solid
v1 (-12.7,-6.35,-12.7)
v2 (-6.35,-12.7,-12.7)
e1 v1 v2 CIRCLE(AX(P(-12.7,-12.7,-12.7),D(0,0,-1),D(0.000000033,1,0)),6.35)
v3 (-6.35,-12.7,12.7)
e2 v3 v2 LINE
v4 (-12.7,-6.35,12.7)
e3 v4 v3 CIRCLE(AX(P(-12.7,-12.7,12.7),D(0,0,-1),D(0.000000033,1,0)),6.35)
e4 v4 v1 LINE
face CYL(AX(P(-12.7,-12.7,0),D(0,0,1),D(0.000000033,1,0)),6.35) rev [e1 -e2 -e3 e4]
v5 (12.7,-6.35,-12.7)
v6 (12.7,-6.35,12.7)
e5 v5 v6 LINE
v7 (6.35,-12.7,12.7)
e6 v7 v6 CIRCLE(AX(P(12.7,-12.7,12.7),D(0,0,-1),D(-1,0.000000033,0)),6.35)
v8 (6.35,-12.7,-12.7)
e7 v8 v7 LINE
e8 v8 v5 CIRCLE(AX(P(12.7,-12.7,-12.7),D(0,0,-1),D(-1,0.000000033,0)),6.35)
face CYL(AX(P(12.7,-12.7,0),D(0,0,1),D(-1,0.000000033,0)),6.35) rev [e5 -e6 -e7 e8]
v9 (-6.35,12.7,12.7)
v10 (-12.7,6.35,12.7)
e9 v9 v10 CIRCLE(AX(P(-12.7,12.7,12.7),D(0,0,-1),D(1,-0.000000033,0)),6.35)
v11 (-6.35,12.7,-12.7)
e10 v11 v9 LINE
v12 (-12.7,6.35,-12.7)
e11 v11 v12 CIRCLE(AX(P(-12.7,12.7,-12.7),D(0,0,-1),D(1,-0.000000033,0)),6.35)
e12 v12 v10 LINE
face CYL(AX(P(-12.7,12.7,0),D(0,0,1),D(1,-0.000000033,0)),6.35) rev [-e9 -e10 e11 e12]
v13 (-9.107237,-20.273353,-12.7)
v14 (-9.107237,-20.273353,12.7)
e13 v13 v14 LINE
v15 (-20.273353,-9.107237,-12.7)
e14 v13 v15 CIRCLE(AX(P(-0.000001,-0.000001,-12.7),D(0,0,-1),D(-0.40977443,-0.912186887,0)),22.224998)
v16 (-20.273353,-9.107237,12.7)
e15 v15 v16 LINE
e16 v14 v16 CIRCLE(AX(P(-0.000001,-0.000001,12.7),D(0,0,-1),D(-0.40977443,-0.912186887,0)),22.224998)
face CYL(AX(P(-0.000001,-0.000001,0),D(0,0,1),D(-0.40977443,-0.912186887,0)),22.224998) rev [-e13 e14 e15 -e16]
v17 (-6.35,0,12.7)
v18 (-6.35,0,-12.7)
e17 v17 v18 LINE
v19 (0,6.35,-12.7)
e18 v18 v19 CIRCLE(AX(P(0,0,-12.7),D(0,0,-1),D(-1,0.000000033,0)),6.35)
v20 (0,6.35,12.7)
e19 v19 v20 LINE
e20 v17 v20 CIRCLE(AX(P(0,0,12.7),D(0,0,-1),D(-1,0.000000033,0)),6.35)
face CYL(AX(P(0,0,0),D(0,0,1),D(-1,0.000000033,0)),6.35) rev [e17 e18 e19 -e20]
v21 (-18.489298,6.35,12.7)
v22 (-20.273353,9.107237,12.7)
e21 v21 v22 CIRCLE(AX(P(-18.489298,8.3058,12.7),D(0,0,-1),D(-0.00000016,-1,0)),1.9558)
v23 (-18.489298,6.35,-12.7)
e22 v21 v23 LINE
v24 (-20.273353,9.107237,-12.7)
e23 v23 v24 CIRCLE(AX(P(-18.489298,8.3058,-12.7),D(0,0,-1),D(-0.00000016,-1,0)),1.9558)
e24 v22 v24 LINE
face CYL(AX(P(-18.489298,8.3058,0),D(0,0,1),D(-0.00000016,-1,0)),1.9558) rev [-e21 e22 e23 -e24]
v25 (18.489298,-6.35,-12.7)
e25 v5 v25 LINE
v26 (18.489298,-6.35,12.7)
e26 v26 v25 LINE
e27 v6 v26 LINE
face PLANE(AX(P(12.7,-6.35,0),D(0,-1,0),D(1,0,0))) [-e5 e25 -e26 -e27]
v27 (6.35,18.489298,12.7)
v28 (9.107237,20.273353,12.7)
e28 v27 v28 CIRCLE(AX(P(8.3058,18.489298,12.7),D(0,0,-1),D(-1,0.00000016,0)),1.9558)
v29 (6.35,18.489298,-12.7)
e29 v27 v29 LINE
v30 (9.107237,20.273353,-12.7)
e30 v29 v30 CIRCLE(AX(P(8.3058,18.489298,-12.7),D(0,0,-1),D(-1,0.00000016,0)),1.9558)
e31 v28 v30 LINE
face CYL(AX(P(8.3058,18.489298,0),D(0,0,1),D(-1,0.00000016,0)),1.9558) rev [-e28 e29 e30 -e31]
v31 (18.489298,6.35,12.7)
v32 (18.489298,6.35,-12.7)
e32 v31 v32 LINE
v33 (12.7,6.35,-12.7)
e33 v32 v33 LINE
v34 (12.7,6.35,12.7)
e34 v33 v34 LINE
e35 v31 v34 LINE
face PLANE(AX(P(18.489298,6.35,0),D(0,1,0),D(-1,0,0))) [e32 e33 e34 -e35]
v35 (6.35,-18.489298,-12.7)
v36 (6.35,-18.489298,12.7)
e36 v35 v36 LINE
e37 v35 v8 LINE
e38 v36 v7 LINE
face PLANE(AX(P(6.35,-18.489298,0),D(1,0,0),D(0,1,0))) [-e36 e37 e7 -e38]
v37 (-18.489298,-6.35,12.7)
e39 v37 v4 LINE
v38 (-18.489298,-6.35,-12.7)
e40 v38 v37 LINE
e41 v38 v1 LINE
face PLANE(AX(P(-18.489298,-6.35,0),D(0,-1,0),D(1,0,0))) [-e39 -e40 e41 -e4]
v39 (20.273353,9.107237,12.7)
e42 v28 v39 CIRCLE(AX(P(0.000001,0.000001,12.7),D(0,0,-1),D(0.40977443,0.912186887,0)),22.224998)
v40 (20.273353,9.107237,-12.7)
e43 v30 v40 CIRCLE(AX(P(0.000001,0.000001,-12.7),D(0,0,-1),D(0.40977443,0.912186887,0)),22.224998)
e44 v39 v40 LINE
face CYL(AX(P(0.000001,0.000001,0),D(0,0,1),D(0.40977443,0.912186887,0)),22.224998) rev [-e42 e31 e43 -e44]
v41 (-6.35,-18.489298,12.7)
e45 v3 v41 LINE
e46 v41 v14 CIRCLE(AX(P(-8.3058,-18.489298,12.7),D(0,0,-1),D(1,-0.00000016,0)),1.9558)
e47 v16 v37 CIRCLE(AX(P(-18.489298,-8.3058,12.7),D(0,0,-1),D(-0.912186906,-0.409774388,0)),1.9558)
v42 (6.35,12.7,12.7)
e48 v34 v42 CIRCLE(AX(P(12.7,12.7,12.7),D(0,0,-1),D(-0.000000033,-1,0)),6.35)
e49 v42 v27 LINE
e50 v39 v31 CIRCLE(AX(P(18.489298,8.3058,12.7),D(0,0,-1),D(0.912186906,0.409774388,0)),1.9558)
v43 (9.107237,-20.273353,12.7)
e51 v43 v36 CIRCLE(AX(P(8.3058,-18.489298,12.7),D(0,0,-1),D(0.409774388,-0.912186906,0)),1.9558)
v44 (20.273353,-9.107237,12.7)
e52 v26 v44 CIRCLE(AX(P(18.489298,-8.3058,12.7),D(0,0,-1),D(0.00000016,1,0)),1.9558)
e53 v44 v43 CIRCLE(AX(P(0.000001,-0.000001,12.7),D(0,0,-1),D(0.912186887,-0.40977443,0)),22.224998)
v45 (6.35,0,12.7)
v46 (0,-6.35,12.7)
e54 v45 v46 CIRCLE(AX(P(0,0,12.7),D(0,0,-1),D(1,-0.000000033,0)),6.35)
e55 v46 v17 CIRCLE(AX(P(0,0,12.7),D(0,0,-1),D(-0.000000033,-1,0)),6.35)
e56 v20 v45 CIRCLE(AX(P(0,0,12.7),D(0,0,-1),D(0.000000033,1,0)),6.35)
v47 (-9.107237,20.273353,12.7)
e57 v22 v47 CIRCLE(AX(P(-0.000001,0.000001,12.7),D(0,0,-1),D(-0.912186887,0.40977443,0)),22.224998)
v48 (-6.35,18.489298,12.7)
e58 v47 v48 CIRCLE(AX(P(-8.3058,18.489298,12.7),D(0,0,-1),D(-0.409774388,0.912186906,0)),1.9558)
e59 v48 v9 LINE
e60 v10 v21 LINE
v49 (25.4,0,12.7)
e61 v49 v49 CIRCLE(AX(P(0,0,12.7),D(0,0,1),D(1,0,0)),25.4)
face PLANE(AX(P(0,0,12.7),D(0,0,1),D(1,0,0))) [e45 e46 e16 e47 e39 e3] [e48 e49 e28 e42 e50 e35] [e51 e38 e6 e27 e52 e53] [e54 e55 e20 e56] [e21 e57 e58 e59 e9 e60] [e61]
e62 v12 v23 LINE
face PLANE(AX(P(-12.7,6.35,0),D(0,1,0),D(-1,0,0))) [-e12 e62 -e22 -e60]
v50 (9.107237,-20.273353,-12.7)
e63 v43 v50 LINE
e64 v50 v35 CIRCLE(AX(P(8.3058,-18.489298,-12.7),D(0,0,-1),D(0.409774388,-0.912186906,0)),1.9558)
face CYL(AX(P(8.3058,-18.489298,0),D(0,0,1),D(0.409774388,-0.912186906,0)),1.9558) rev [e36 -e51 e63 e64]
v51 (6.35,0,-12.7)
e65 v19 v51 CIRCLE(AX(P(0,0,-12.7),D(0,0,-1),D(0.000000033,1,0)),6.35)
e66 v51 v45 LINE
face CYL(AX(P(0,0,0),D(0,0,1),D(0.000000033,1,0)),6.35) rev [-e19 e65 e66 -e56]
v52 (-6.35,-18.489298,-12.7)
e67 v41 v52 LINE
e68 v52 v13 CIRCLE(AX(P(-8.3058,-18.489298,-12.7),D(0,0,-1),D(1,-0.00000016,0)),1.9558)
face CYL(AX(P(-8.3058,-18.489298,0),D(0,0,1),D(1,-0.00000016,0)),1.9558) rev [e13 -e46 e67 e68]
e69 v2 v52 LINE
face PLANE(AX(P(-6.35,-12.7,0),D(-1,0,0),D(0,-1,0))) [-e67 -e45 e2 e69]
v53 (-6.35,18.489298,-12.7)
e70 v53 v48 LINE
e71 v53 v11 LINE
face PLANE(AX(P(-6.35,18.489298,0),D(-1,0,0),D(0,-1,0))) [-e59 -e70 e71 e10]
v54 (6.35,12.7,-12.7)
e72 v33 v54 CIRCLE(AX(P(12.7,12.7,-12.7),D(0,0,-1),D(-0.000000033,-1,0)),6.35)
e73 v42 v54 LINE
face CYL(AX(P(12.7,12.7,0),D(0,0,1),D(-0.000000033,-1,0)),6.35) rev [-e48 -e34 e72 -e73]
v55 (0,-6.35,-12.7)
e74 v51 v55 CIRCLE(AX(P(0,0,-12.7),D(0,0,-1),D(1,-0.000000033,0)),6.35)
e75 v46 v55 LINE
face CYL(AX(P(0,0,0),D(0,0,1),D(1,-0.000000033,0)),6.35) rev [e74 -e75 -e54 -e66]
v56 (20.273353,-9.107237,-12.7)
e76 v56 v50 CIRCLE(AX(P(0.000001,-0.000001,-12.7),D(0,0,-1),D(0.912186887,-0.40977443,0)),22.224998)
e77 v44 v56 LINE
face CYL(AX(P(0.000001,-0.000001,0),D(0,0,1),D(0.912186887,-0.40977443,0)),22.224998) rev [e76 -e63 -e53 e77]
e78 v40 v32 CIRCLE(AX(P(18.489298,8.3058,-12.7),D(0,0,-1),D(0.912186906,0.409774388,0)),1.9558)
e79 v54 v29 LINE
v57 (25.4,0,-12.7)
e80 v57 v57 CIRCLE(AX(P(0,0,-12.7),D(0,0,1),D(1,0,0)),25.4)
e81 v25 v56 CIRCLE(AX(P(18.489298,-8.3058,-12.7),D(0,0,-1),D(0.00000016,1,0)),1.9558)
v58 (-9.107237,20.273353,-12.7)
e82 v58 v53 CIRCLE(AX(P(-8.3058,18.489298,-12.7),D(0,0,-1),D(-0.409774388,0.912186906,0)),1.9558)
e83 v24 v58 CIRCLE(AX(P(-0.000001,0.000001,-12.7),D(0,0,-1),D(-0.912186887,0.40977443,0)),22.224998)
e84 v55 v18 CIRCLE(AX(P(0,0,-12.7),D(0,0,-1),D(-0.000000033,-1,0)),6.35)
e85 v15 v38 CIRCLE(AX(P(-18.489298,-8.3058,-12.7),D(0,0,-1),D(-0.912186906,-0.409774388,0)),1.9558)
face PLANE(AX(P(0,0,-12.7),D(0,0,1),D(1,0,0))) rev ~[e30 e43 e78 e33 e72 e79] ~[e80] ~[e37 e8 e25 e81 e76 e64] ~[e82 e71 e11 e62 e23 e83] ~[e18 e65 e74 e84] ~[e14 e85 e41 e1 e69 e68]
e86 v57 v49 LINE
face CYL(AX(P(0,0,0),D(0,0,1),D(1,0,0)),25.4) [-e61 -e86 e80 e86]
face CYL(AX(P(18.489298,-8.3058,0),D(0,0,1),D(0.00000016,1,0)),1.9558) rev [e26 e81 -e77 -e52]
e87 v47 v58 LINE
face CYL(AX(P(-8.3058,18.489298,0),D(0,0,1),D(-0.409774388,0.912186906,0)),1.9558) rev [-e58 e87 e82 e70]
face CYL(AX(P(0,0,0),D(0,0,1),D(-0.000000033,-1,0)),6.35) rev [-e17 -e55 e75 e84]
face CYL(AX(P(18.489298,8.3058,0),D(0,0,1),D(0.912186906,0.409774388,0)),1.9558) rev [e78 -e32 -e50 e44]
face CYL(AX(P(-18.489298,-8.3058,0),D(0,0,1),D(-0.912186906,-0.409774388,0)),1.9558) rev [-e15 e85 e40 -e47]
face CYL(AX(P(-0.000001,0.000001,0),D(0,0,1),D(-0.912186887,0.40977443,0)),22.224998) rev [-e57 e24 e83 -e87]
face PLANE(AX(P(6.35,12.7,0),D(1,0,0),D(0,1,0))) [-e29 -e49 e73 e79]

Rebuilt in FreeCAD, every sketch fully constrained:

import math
import FreeCAD as App
import Part
import Sketcher

V = App.Vector
Q = App.Units.Quantity

doc = App.newDocument("Part")
body = doc.addObject("PartDesign::Body", "Body")

# Sketch on XY plane
sketch1 = doc.addObject("Sketcher::SketchObject", "Sketch")
body.addObject(sketch1)
sketch1.AttachmentSupport = (doc.XY_Plane, [""])
sketch1.MapMode = "FlatFace"
sketch1.addGeometry(Part.Circle(V(0, 0, 0), V(0, 0, 1), 25.4), False)
sketch1.addGeometry(Part.ArcOfCircle(Part.Circle(V(-8.3, -18.5, 0), V(0, 0, 1), 2), math.radians(-114), math.radians(0)), False)
sketch1.addGeometry(Part.ArcOfCircle(Part.Circle(V(0, 0, 0), V(0, 0, 1), 22.2), math.radians(-156), math.radians(-114)), False)
sketch1.addGeometry(Part.ArcOfCircle(Part.Circle(V(-18.5, -8.3, 0), V(0, 0, 1), 2), math.radians(90), math.radians(204)), False)
sketch1.addGeometry(Part.LineSegment(V(-18.5, -6.3, 0), V(-12.7, -6.3, 0)), False)
sketch1.addGeometry(Part.ArcOfCircle(Part.Circle(V(-12.7, -12.7, 0), V(0, 0, 1), 6.4), math.radians(0), math.radians(90)), False)
sketch1.addGeometry(Part.LineSegment(V(-6.3, -12.7, 0), V(-6.3, -18.5, 0)), False)
sketch1.addGeometry(Part.ArcOfCircle(Part.Circle(V(8.3, -18.5, 0), V(0, 0, 1), 2), math.radians(-180), math.radians(-66)), False)
sketch1.addGeometry(Part.LineSegment(V(6.3, -18.5, 0), V(6.3, -12.7, 0)), False)
sketch1.addGeometry(Part.ArcOfCircle(Part.Circle(V(12.7, -12.7, 0), V(0, 0, 1), 6.4), math.radians(90), math.radians(180)), False)
sketch1.addGeometry(Part.LineSegment(V(12.7, -6.3, 0), V(18.5, -6.3, 0)), False)
sketch1.addGeometry(Part.ArcOfCircle(Part.Circle(V(18.5, -8.3, 0), V(0, 0, 1), 2), math.radians(-24), math.radians(90)), False)
sketch1.addGeometry(Part.ArcOfCircle(Part.Circle(V(0, 0, 0), V(0, 0, 1), 22.2), math.radians(-66), math.radians(-24)), False)
sketch1.addGeometry(Part.ArcOfCircle(Part.Circle(V(-8.3, 18.5, 0), V(0, 0, 1), 2), math.radians(0), math.radians(114)), False)
sketch1.addGeometry(Part.LineSegment(V(-6.3, 18.5, 0), V(-6.3, 12.7, 0)), False)
sketch1.addGeometry(Part.ArcOfCircle(Part.Circle(V(-12.7, 12.7, 0), V(0, 0, 1), 6.4), math.radians(-90), math.radians(0)), False)
sketch1.addGeometry(Part.LineSegment(V(-12.7, 6.3, 0), V(-18.5, 6.3, 0)), False)
sketch1.addGeometry(Part.ArcOfCircle(Part.Circle(V(-18.5, 8.3, 0), V(0, 0, 1), 2), math.radians(156), math.radians(270)), False)
sketch1.addGeometry(Part.ArcOfCircle(Part.Circle(V(0, 0, 0), V(0, 0, 1), 22.2), math.radians(114), math.radians(156)), False)
sketch1.addGeometry(Part.ArcOfCircle(Part.Circle(V(0, 0, 0), V(0, 0, 1), 6.4), math.radians(90), math.radians(180)), False)
sketch1.addGeometry(Part.ArcOfCircle(Part.Circle(V(0, 0, 0), V(0, 0, 1), 6.4), math.radians(0), math.radians(90)), False)
sketch1.addGeometry(Part.ArcOfCircle(Part.Circle(V(0, 0, 0), V(0, 0, 1), 6.4), math.radians(-90), math.radians(0)), False)
sketch1.addGeometry(Part.ArcOfCircle(Part.Circle(V(0, 0, 0), V(0, 0, 1), 6.4), math.radians(-180), math.radians(-90)), False)
sketch1.addGeometry(Part.LineSegment(V(18.5, 6.3, 0), V(12.7, 6.3, 0)), False)
sketch1.addGeometry(Part.ArcOfCircle(Part.Circle(V(12.7, 12.7, 0), V(0, 0, 1), 6.4), math.radians(-180), math.radians(-90)), False)
sketch1.addGeometry(Part.LineSegment(V(6.3, 12.7, 0), V(6.3, 18.5, 0)), False)
sketch1.addGeometry(Part.ArcOfCircle(Part.Circle(V(8.3, 18.5, 0), V(0, 0, 1), 2), math.radians(66), math.radians(180)), False)
sketch1.addGeometry(Part.ArcOfCircle(Part.Circle(V(0, 0, 0), V(0, 0, 1), 22.2), math.radians(24), math.radians(66)), False)
sketch1.addGeometry(Part.ArcOfCircle(Part.Circle(V(18.5, 8.3, 0), V(0, 0, 1), 2), math.radians(-90), math.radians(24)), False)
sketch1.addConstraint(Sketcher.Constraint("Tangent", 1, 1, 2, 2))
sketch1.addConstraint(Sketcher.Constraint("Tangent", 2, 1, 3, 2))
sketch1.addConstraint(Sketcher.Constraint("Tangent", 3, 1, 4, 1))
sketch1.addConstraint(Sketcher.Constraint("Tangent", 4, 2, 5, 2))
sketch1.addConstraint(Sketcher.Constraint("Tangent", 5, 1, 6, 1))
sketch1.addConstraint(Sketcher.Constraint("Tangent", 6, 2, 1, 2))
sketch1.addConstraint(Sketcher.Constraint("Tangent", 7, 1, 8, 1))
sketch1.addConstraint(Sketcher.Constraint("Tangent", 8, 2, 9, 2))
sketch1.addConstraint(Sketcher.Constraint("Tangent", 9, 1, 10, 1))
sketch1.addConstraint(Sketcher.Constraint("Tangent", 10, 2, 11, 2))
sketch1.addConstraint(Sketcher.Constraint("Tangent", 11, 1, 12, 2))
sketch1.addConstraint(Sketcher.Constraint("Tangent", 12, 1, 7, 2))
sketch1.addConstraint(Sketcher.Constraint("Tangent", 13, 1, 14, 1))
sketch1.addConstraint(Sketcher.Constraint("Tangent", 14, 2, 15, 2))
sketch1.addConstraint(Sketcher.Constraint("Tangent", 15, 1, 16, 1))
sketch1.addConstraint(Sketcher.Constraint("Tangent", 16, 2, 17, 2))
sketch1.addConstraint(Sketcher.Constraint("Tangent", 17, 1, 18, 2))
sketch1.addConstraint(Sketcher.Constraint("Tangent", 18, 1, 13, 2))
sketch1.addConstraint(Sketcher.Constraint("Tangent", 19, 1, 20, 2))
sketch1.addConstraint(Sketcher.Constraint("Tangent", 20, 1, 21, 2))
sketch1.addConstraint(Sketcher.Constraint("Tangent", 21, 1, 22, 2))
sketch1.addConstraint(Sketcher.Constraint("Tangent", 22, 1, 19, 2))
sketch1.addConstraint(Sketcher.Constraint("Tangent", 23, 2, 24, 2))
sketch1.addConstraint(Sketcher.Constraint("Tangent", 24, 1, 25, 1))
sketch1.addConstraint(Sketcher.Constraint("Tangent", 25, 2, 26, 2))
sketch1.addConstraint(Sketcher.Constraint("Tangent", 26, 1, 27, 2))
sketch1.addConstraint(Sketcher.Constraint("Tangent", 27, 1, 28, 2))
sketch1.addConstraint(Sketcher.Constraint("Tangent", 28, 1, 23, 1))
sketch1.addConstraint(Sketcher.Constraint("Horizontal", 4))
sketch1.addConstraint(Sketcher.Constraint("Vertical", 6))
sketch1.addConstraint(Sketcher.Constraint("Vertical", 8))
sketch1.addConstraint(Sketcher.Constraint("Horizontal", 10))
sketch1.addConstraint(Sketcher.Constraint("Vertical", 14))
sketch1.addConstraint(Sketcher.Constraint("Horizontal", 16))
sketch1.addConstraint(Sketcher.Constraint("Horizontal", 23))
sketch1.addConstraint(Sketcher.Constraint("Vertical", 25))
sketch1.addConstraint(Sketcher.Constraint("Coincident", 0, 3, -1, 1))
sketch1.addConstraint(Sketcher.Constraint("Coincident", 2, 3, -1, 1))
sketch1.addConstraint(Sketcher.Constraint("Coincident", 12, 3, -1, 1))
sketch1.addConstraint(Sketcher.Constraint("Coincident", 18, 3, -1, 1))
sketch1.addConstraint(Sketcher.Constraint("Coincident", 19, 3, -1, 1))
sketch1.addConstraint(Sketcher.Constraint("Coincident", 27, 3, -1, 1))
sketch1.addConstraint(Sketcher.Constraint("Equal", 1, 3))
sketch1.addConstraint(Sketcher.Constraint("Equal", 3, 7))
sketch1.addConstraint(Sketcher.Constraint("Equal", 5, 9))
sketch1.addConstraint(Sketcher.Constraint("Equal", 7, 11))
sketch1.addConstraint(Sketcher.Constraint("Equal", 2, 12))
sketch1.addConstraint(Sketcher.Constraint("Equal", 11, 13))
sketch1.addConstraint(Sketcher.Constraint("Equal", 9, 15))
sketch1.addConstraint(Sketcher.Constraint("Equal", 13, 17))
sketch1.addConstraint(Sketcher.Constraint("Equal", 12, 18))
sketch1.addConstraint(Sketcher.Constraint("Equal", 15, 19))
sketch1.addConstraint(Sketcher.Constraint("Equal", 19, 20))
sketch1.addConstraint(Sketcher.Constraint("Equal", 22, 24))
sketch1.addConstraint(Sketcher.Constraint("Equal", 17, 26))
sketch1.addConstraint(Sketcher.Constraint("Equal", 18, 27))
sketch1.addConstraint(Sketcher.Constraint("Equal", 26, 28))
sketch1.addConstraint(Sketcher.Constraint("Symmetric", 9, 3, 15, 3, -1, 1))
sketch1.addConstraint(Sketcher.Constraint("Symmetric", 5, 3, 24, 3, -1, 1))
sketch1.addConstraint(Sketcher.Constraint("Symmetric", 5, 3, 9, 3, -2))
sketch1.addConstraint(Sketcher.Constraint("PointOnObject", 19, 1, -2))
sketch1.addConstraint(Sketcher.Constraint("PointOnObject", 20, 1, -1))
sketch1.addConstraint(Sketcher.Constraint("PointOnObject", 21, 1, -2))
sketch1.addConstraint(Sketcher.Constraint("PointOnObject", 22, 1, -1))
sketch1.addConstraint(Sketcher.Constraint("Horizontal", 16, 2, 19, 1))
sketch1.addConstraint(Sketcher.Constraint("Vertical", 8, 2, 20, 1))
sketch1.addConstraint(Sketcher.Constraint("Diameter", 0, Q("2 in")))
sketch1.addConstraint(Sketcher.Constraint("Radius", 5, Q("0.25 in")))
sketch1.addConstraint(Sketcher.Constraint("Radius", 1, Q("0.077 in")))
sketch1.addConstraint(Sketcher.Constraint("Radius", 2, Q("0.8749999 in")))
pad1 = doc.addObject("PartDesign::Pad", "Pad")
body.addObject(pad1)
pad1.Profile = sketch1
pad1.Length = Q("1 in")
pad1.Midplane = True

doc.recompute()
